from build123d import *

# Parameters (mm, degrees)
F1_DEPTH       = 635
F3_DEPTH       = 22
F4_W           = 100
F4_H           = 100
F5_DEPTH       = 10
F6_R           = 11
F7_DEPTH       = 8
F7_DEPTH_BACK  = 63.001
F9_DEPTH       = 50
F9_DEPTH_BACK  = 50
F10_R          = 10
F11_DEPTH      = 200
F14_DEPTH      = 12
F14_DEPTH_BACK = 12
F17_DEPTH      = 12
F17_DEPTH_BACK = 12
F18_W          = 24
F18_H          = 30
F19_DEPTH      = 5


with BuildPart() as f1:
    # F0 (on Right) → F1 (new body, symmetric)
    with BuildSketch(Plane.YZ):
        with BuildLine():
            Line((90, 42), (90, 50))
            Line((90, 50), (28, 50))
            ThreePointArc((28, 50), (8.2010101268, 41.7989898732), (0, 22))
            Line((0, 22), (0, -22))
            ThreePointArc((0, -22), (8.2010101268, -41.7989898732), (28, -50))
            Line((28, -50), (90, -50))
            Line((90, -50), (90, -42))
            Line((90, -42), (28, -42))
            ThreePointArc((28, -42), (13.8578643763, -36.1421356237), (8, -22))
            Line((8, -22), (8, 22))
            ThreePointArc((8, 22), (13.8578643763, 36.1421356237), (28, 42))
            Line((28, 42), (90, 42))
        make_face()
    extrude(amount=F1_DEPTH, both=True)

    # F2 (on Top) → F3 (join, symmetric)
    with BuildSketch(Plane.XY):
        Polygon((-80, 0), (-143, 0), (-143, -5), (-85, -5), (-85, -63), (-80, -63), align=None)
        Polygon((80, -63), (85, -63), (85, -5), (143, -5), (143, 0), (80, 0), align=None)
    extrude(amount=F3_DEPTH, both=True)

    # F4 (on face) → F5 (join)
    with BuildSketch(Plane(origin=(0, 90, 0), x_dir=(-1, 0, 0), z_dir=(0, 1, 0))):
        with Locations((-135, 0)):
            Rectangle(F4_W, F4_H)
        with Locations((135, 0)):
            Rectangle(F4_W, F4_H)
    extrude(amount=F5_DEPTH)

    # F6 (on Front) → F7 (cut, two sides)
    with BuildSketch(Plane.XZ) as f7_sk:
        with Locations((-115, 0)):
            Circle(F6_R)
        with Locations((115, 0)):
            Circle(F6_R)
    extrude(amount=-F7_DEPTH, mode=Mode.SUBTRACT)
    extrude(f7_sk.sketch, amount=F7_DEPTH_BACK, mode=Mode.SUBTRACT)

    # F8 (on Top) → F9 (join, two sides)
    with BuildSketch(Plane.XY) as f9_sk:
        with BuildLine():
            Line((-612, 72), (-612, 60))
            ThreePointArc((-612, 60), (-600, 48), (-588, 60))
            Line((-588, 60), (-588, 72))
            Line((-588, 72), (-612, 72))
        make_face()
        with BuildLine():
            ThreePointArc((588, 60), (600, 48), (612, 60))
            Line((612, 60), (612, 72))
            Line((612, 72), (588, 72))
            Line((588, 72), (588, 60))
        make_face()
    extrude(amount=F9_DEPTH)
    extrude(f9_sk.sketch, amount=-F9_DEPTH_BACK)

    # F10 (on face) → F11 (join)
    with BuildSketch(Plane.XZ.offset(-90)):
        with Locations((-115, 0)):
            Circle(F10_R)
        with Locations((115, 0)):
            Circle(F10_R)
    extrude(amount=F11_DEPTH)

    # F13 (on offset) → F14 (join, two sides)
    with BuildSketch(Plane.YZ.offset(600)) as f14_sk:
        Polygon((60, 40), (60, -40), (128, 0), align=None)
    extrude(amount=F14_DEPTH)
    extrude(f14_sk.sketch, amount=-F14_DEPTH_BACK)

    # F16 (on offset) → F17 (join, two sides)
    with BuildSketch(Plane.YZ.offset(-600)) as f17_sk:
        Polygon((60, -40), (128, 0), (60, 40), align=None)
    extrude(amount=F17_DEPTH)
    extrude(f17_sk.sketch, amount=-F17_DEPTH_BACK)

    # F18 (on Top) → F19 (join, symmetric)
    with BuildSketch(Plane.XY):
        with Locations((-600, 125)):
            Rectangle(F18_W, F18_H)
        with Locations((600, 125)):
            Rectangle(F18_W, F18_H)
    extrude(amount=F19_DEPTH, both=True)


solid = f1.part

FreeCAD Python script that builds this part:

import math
import FreeCAD as App
import Part
import Sketcher


def add_polygon(sketch, points):
    """Adds a closed chain of lines whose ends are joined by coincident constraints."""
    first, n = sketch.GeometryCount, len(points)
    for a, b in zip(points, points[1:] + points[:1]):
        sketch.addGeometry(Part.LineSegment(App.Vector(*a, 0), App.Vector(*b, 0)), False)
    for i in range(n):
        sketch.addConstraint(Sketcher.Constraint("Coincident", first + i, 2, first + (i + 1) % n, 1))

doc = App.newDocument("Part")
body = doc.addObject("PartDesign::Body", "Body")

sketch1 = doc.addObject("Sketcher::SketchObject", "Sketch")
body.addObject(sketch1)
sketch1.AttachmentSupport = (doc.YZ_Plane, [""])
sketch1.MapMode = "FlatFace"
sketch1.addGeometry(Part.LineSegment(App.Vector(90, 42, 0), App.Vector(90, 50, 0)), False)
sketch1.addGeometry(Part.LineSegment(App.Vector(90, 50, 0), App.Vector(28, 50, 0)), False)
sketch1.addGeometry(Part.ArcOfCircle(Part.Circle(App.Vector(28, 22, 0), App.Vector(0, 0, 1), 28), math.radians(90), math.radians(180)), False)
sketch1.addGeometry(Part.LineSegment(App.Vector(0, 22, 0), App.Vector(0, -22, 0)), False)
sketch1.addGeometry(Part.ArcOfCircle(Part.Circle(App.Vector(28, -22, 0), App.Vector(0, 0, 1), 28), math.radians(180), math.radians(270)), False)
sketch1.addGeometry(Part.LineSegment(App.Vector(28, -50, 0), App.Vector(90, -50, 0)), False)
sketch1.addGeometry(Part.LineSegment(App.Vector(90, -50, 0), App.Vector(90, -42, 0)), False)
sketch1.addGeometry(Part.LineSegment(App.Vector(90, -42, 0), App.Vector(28, -42, 0)), False)
sketch1.addGeometry(Part.ArcOfCircle(Part.Circle(App.Vector(28, -22, 0), App.Vector(0, 0, 1), 20), math.radians(180), math.radians(270)), False)
sketch1.addGeometry(Part.LineSegment(App.Vector(8, -22, 0), App.Vector(8, 22, 0)), False)
sketch1.addGeometry(Part.ArcOfCircle(Part.Circle(App.Vector(28, 22, 0), App.Vector(0, 0, 1), 20), math.radians(90), math.radians(180)), False)
sketch1.addGeometry(Part.LineSegment(App.Vector(28, 42, 0), App.Vector(90, 42, 0)), False)
sketch1.addConstraint(Sketcher.Constraint("Coincident", 0, 2, 1, 1))
sketch1.addConstraint(Sketcher.Constraint("Tangent", 1, 2, 2, 1))
sketch1.addConstraint(Sketcher.Constraint("Tangent", 2, 2, 3, 1))
sketch1.addConstraint(Sketcher.Constraint("Tangent", 3, 2, 4, 1))
sketch1.addConstraint(Sketcher.Constraint("Tangent", 4, 2, 5, 1))
sketch1.addConstraint(Sketcher.Constraint("Coincident", 5, 2, 6, 1))
sketch1.addConstraint(Sketcher.Constraint("Coincident", 6, 2, 7, 1))
sketch1.addConstraint(Sketcher.Constraint("Tangent", 7, 2, 8, 2))
sketch1.addConstraint(Sketcher.Constraint("Tangent", 8, 1, 9, 1))
sketch1.addConstraint(Sketcher.Constraint("Tangent", 9, 2, 10, 2))
sketch1.addConstraint(Sketcher.Constraint("Tangent", 10, 1, 11, 1))
sketch1.addConstraint(Sketcher.Constraint("Coincident", 11, 2, 0, 1))
sketch1.addConstraint(Sketcher.Constraint("Vertical", 0))
sketch1.addConstraint(Sketcher.Constraint("Horizontal", 1))
sketch1.addConstraint(Sketcher.Constraint("Vertical", 3))
sketch1.addConstraint(Sketcher.Constraint("Horizontal", 5))
sketch1.addConstraint(Sketcher.Constraint("Vertical", 6))
sketch1.addConstraint(Sketcher.Constraint("Horizontal", 7))
sketch1.addConstraint(Sketcher.Constraint("Vertical", 9))
sketch1.addConstraint(Sketcher.Constraint("Horizontal", 11))
sketch1.addConstraint(Sketcher.Constraint("Coincident", 8, 3, 4, 3))
sketch1.addConstraint(Sketcher.Constraint("Coincident", 10, 3, 2, 3))
sketch1.addConstraint(Sketcher.Constraint("Equal", 2, 4))
sketch1.addConstraint(Sketcher.Constraint("Symmetric", 2, 2, 3, 2, -1, 1))
sketch1.addConstraint(Sketcher.Constraint("Vertical", 0, 2, 5, 2))
sketch1.addConstraint(Sketcher.Constraint("Radius", 2, 28.0))
sketch1.addConstraint(Sketcher.Constraint("Radius", 8, 20.0))
sketch1.addConstraint(Sketcher.Constraint("DistanceX", 1, 2, 1, 1, 62.0))
sketch1.addConstraint(Sketcher.Constraint("DistanceY", 3, 2, 3, 1, 44.0))
pad1 = doc.addObject("PartDesign::Pad", "Pad")
body.addObject(pad1)
pad1.Profile = sketch1
pad1.Length = 1270
pad1.Midplane = True

sketch2 = doc.addObject("Sketcher::SketchObject", "Sketch001")
body.addObject(sketch2)
sketch2.AttachmentSupport = (doc.XY_Plane, [""])
sketch2.MapMode = "FlatFace"
add_polygon(sketch2, [(-80, 0), (-143, 0), (-143, -5), (-85, -5), (-85, -63), (-80, -63)])
add_polygon(sketch2, [(80, -63), (85, -63), (85, -5), (143, -5), (143, 0), (80, 0)])
sketch2.addConstraint(Sketcher.Constraint("Horizontal", 0))
sketch2.addConstraint(Sketcher.Constraint("Vertical", 1))
sketch2.addConstraint(Sketcher.Constraint("Horizontal", 2))
sketch2.addConstraint(Sketcher.Constraint("Vertical", 3))
sketch2.addConstraint(Sketcher.Constraint("Horizontal", 4))
sketch2.addConstraint(Sketcher.Constraint("Vertical", 5))
sketch2.addConstraint(Sketcher.Constraint("Horizontal", 6))
sketch2.addConstraint(Sketcher.Constraint("Vertical", 7))
sketch2.addConstraint(Sketcher.Constraint("Horizontal", 8))
sketch2.addConstraint(Sketcher.Constraint("Vertical", 9))
sketch2.addConstraint(Sketcher.Constraint("Horizontal", 10))
sketch2.addConstraint(Sketcher.Constraint("Vertical", 11))
sketch2.addConstraint(Sketcher.Constraint("Symmetric", 0, 2, 9, 2, -1, 1))
sketch2.addConstraint(Sketcher.Constraint("Symmetric", 3, 2, 6, 2, -2))
sketch2.addConstraint(Sketcher.Constraint("Symmetric", 5, 2, 10, 2, -2))
sketch2.addConstraint(Sketcher.Constraint("Horizontal", 2, 2, 7, 2))
sketch2.addConstraint(Sketcher.Constraint("Equal", 6, 1))
sketch2.addConstraint(Sketcher.Constraint("Equal", 8, 3))
sketch2.addConstraint(Sketcher.Constraint("DistanceX", 0, 2, 0, 1, 63.0))
sketch2.addConstraint(Sketcher.Constraint("DistanceX", 2, 1, 2, 2, 58.0))
sketch2.addConstraint(Sketcher.Constraint("DistanceX", 0, 2, -1, 1, 143.0))
pad2 = doc.addObject("PartDesign::Pad", "Pad001")
body.addObject(pad2)
pad2.Profile = sketch2
pad2.Length = 44
pad2.Midplane = True

sketch3 = doc.addObject("Sketcher::SketchObject", "Sketch002")
body.addObject(sketch3)
sketch3.AttachmentSupport = (doc.XZ_Plane, [""])
sketch3.MapMode = "FlatFace"
sketch3.AttachmentOffset = App.Placement(App.Vector(0, 0, -90), App.Rotation())
add_polygon(sketch3, [(185, 50), (185, -50), (85, -50), (85, 50)])
add_polygon(sketch3, [(-85, 50), (-85, -50), (-185, -50), (-185, 50)])
sketch3.addConstraint(Sketcher.Constraint("Vertical", 0))
sketch3.addConstraint(Sketcher.Constraint("Horizontal", 1))
sketch3.addConstraint(Sketcher.Constraint("Vertical", 2))
sketch3.addConstraint(Sketcher.Constraint("Horizontal", 3))
sketch3.addConstraint(Sketcher.Constraint("Vertical", 4))
sketch3.addConstraint(Sketcher.Constraint("Horizontal", 5))
sketch3.addConstraint(Sketcher.Constraint("Vertical", 6))
sketch3.addConstraint(Sketcher.Constraint("Horizontal", 7))
sketch3.addConstraint(Sketcher.Constraint("Symmetric", 2, 2, 4, 2, -1, 1))
sketch3.addConstraint(Sketcher.Constraint("Symmetric", 0, 2, 6, 2, -1, 1))
sketch3.addConstraint(Sketcher.Constraint("Horizontal", 1, 2, 4, 2))
sketch3.addConstraint(Sketcher.Constraint("Equal", 7, 0))
sketch3.addConstraint(Sketcher.Constraint("DistanceX", 1, 2, 1, 1, 100.0))
sketch3.addConstraint(Sketcher.Constraint("DistanceX", -1, 1, 0, 2, 185.0))
pad3 = doc.addObject("PartDesign::Pad", "Pad002")
body.addObject(pad3)
pad3.Profile = sketch3
pad3.Length = 10
pad3.Reversed = True

sketch4 = doc.addObject("Sketcher::SketchObject", "Sketch003")
body.addObject(sketch4)
sketch4.AttachmentSupport = (doc.XZ_Plane, [""])
sketch4.MapMode = "FlatFace"
sketch4.addGeometry(Part.Circle(App.Vector(-115, 0, 0), App.Vector(0, 0, 1), 11), False)
sketch4.addGeometry(Part.Circle(App.Vector(115, 0, 0), App.Vector(0, 0, 1), 11), False)
sketch4.addConstraint(Sketcher.Constraint("Equal", 0, 1))
sketch4.addConstraint(Sketcher.Constraint("Symmetric", 0, 3, 1, 3, -1, 1))
sketch4.addConstraint(Sketcher.Constraint("PointOnObject", 0, 3, -1))
sketch4.addConstraint(Sketcher.Constraint("Diameter", 0, 22.0))
sketch4.addConstraint(Sketcher.Constraint("DistanceX", 0, 3, -1, 1, 115.0))
pocket1 = doc.addObject("PartDesign::Pocket", "Pocket")
body.addObject(pocket1)
pocket1.Profile = sketch4
pocket1.Type = "TwoLengths"
pocket1.Length = 8
pocket1.Length2 = 63.001

sketch5 = doc.addObject("Sketcher::SketchObject", "Sketch004")
body.addObject(sketch5)
sketch5.AttachmentSupport = (doc.XY_Plane, [""])
sketch5.MapMode = "FlatFace"
sketch5.addGeometry(Part.LineSegment(App.Vector(-612, 72, 0), App.Vector(-612, 60, 0)), False)
sketch5.addGeometry(Part.ArcOfCircle(Part.Circle(App.Vector(-600, 60, 0), App.Vector(0, 0, 1), 12), math.radians(180), math.radians(360)), False)
sketch5.addGeometry(Part.LineSegment(App.Vector(-588, 60, 0), App.Vector(-588, 72, 0)), False)
sketch5.addGeometry(Part.LineSegment(App.Vector(-588, 72, 0), App.Vector(-612, 72, 0)), False)
sketch5.addGeometry(Part.ArcOfCircle(Part.Circle(App.Vector(600, 60, 0), App.Vector(0, 0, 1), 12), math.radians(180), math.radians(360)), False)
sketch5.addGeometry(Part.LineSegment(App.Vector(612, 60, 0), App.Vector(612, 72, 0)), False)
sketch5.addGeometry(Part.LineSegment(App.Vector(612, 72, 0), App.Vector(588, 72, 0)), False)
sketch5.addGeometry(Part.LineSegment(App.Vector(588, 72, 0), App.Vector(588, 60, 0)), False)
sketch5.addConstraint(Sketcher.Constraint("Tangent", 0, 2, 1, 1))
sketch5.addConstraint(Sketcher.Constraint("Tangent", 1, 2, 2, 1))
sketch5.addConstraint(Sketcher.Constraint("Coincident", 2, 2, 3, 1))
sketch5.addConstraint(Sketcher.Constraint("Coincident", 3, 2, 0, 1))
sketch5.addConstraint(Sketcher.Constraint("Tangent", 4, 2, 5, 1))
sketch5.addConstraint(Sketcher.Constraint("Coincident", 5, 2, 6, 1))
sketch5.addConstraint(Sketcher.Constraint("Coincident", 6, 2, 7, 1))
sketch5.addConstraint(Sketcher.Constraint("Tangent", 7, 2, 4, 1))
sketch5.addConstraint(Sketcher.Constraint("Vertical", 0))
sketch5.addConstraint(Sketcher.Constraint("Vertical", 2))
sketch5.addConstraint(Sketcher.Constraint("Horizontal", 3))
sketch5.addConstraint(Sketcher.Constraint("Vertical", 5))
sketch5.addConstraint(Sketcher.Constraint("Horizontal", 6))
sketch5.addConstraint(Sketcher.Constraint("Vertical", 7))
sketch5.addConstraint(Sketcher.Constraint("Equal", 1, 4))
sketch5.addConstraint(Sketcher.Constraint("Symmetric", 1, 3, 4, 3, -2))
sketch5.addConstraint(Sketcher.Constraint("Horizontal", 3, 2, 5, 2))
sketch5.addConstraint(Sketcher.Constraint("Radius", 1, 12.0))
sketch5.addConstraint(Sketcher.Constraint("DistanceY", 0, 2, 0, 1, 12.0))
sketch5.addConstraint(Sketcher.Constraint("DistanceX", 1, 3, -1, 1, 600.0))
sketch5.addConstraint(Sketcher.Constraint("DistanceY", -1, 1, 1, 3, 60.0))
pad4 = doc.addObject("PartDesign::Pad", "Pad003")
body.addObject(pad4)
pad4.Profile = sketch5
pad4.Type = "TwoLengths"
pad4.Length = 50
pad4.Length2 = 50

sketch6 = doc.addObject("Sketcher::SketchObject", "Sketch005")
body.addObject(sketch6)
sketch6.AttachmentSupport = (doc.XZ_Plane, [""])
sketch6.MapMode = "FlatFace"
sketch6.AttachmentOffset = App.Placement(App.Vector(0, 0, -90), App.Rotation())
sketch6.addGeometry(Part.Circle(App.Vector(-115, 0, 0), App.Vector(0, 0, 1), 10), False)
sketch6.addGeometry(Part.Circle(App.Vector(115, 0, 0), App.Vector(0, 0, 1), 10), False)
sketch6.addConstraint(Sketcher.Constraint("Equal", 0, 1))
sketch6.addConstraint(Sketcher.Constraint("Symmetric", 0, 3, 1, 3, -1, 1))
sketch6.addConstraint(Sketcher.Constraint("PointOnObject", 0, 3, -1))
sketch6.addConstraint(Sketcher.Constraint("Diameter", 0, 20.0))
sketch6.addConstraint(Sketcher.Constraint("DistanceX", 0, 3, -1, 1, 115.0))
pad5 = doc.addObject("PartDesign::Pad", "Pad004")
body.addObject(pad5)
pad5.Profile = sketch6
pad5.Length = 200

sketch7 = doc.addObject("Sketcher::SketchObject", "Sketch006")
body.addObject(sketch7)
sketch7.AttachmentSupport = (doc.YZ_Plane, [""])
sketch7.MapMode = "FlatFace"
sketch7.AttachmentOffset = App.Placement(App.Vector(0, 0, 600), App.Rotation())
add_polygon(sketch7, [(60, 40), (60, -40), (128, 0)])
sketch7.addConstraint(Sketcher.Constraint("Vertical", 0))
sketch7.addConstraint(Sketcher.Constraint("PointOnObject", 1, 2, -1))
sketch7.addConstraint(Sketcher.Constraint("Equal", 1, 2))
sketch7.addConstraint(Sketcher.Constraint("DistanceY", 0, 2, 0, 1, 80.0))
sketch7.addConstraint(Sketcher.Constraint("DistanceX", -1, 1, 0, 2, 60.0))
sketch7.addConstraint(Sketcher.Constraint("DistanceX", -1, 1, 1, 2, 128.0))
pad6 = doc.addObject("PartDesign::Pad", "Pad005")
body.addObject(pad6)
pad6.Profile = sketch7
pad6.Type = "TwoLengths"
pad6.Length = 12
pad6.Length2 = 12

sketch8 = doc.addObject("Sketcher::SketchObject", "Sketch007")
body.addObject(sketch8)
sketch8.AttachmentSupport = (doc.YZ_Plane, [""])
sketch8.MapMode = "FlatFace"
sketch8.AttachmentOffset = App.Placement(App.Vector(0, 0, -600), App.Rotation())
add_polygon(sketch8, [(60, -40), (128, 0), (60, 40)])
sketch8.addConstraint(Sketcher.Constraint("Vertical", 2))
sketch8.addConstraint(Sketcher.Constraint("PointOnObject", 0, 2, -1))
sketch8.addConstraint(Sketcher.Constraint("Equal", 0, 1))
sketch8.addConstraint(Sketcher.Constraint("DistanceY", 2, 2, 2, 1, 80.0))
sketch8.addConstraint(Sketcher.Constraint("DistanceX", -1, 1, 0, 2, 128.0))
sketch8.addConstraint(Sketcher.Constraint("DistanceX", -1, 1, 1, 2, 60.0))
pad7 = doc.addObject("PartDesign::Pad", "Pad006")
body.addObject(pad7)
pad7.Profile = sketch8
pad7.Type = "TwoLengths"
pad7.Length = 12
pad7.Length2 = 12

sketch9 = doc.addObject("Sketcher::SketchObject", "Sketch008")
body.addObject(sketch9)
sketch9.AttachmentSupport = (doc.XY_Plane, [""])
sketch9.MapMode = "FlatFace"
add_polygon(sketch9, [(-612, 140), (-612, 110), (-588, 110), (-588, 140)])
add_polygon(sketch9, [(588, 140), (588, 110), (612, 110), (612, 140)])
sketch9.addConstraint(Sketcher.Constraint("Vertical", 0))
sketch9.addConstraint(Sketcher.Constraint("Horizontal", 1))
sketch9.addConstraint(Sketcher.Constraint("Vertical", 2))
sketch9.addConstraint(Sketcher.Constraint("Horizontal", 3))
sketch9.addConstraint(Sketcher.Constraint("Vertical", 4))
sketch9.addConstraint(Sketcher.Constraint("Horizontal", 5))
sketch9.addConstraint(Sketcher.Constraint("Vertical", 6))
sketch9.addConstraint(Sketcher.Constraint("Horizontal", 7))
sketch9.addConstraint(Sketcher.Constraint("Symmetric", 1, 2, 4, 2, -2))
sketch9.addConstraint(Sketcher.Constraint("Symmetric", 3, 2, 6, 2, -2))
sketch9.addConstraint(Sketcher.Constraint("DistanceX", 1, 1, 1, 2, 24.0))
sketch9.addConstraint(Sketcher.Constraint("DistanceY", 0, 2, 0, 1, 30.0))
sketch9.addConstraint(Sketcher.Constraint("DistanceX", 0, 2, -1, 1, 612.0))
sketch9.addConstraint(Sketcher.Constraint("DistanceY", -1, 1, 0, 2, 110.0))
pad8 = doc.addObject("PartDesign::Pad", "Pad007")
body.addObject(pad8)
pad8.Profile = sketch9
pad8.Length = 10
pad8.Midplane = True

doc.recompute()
